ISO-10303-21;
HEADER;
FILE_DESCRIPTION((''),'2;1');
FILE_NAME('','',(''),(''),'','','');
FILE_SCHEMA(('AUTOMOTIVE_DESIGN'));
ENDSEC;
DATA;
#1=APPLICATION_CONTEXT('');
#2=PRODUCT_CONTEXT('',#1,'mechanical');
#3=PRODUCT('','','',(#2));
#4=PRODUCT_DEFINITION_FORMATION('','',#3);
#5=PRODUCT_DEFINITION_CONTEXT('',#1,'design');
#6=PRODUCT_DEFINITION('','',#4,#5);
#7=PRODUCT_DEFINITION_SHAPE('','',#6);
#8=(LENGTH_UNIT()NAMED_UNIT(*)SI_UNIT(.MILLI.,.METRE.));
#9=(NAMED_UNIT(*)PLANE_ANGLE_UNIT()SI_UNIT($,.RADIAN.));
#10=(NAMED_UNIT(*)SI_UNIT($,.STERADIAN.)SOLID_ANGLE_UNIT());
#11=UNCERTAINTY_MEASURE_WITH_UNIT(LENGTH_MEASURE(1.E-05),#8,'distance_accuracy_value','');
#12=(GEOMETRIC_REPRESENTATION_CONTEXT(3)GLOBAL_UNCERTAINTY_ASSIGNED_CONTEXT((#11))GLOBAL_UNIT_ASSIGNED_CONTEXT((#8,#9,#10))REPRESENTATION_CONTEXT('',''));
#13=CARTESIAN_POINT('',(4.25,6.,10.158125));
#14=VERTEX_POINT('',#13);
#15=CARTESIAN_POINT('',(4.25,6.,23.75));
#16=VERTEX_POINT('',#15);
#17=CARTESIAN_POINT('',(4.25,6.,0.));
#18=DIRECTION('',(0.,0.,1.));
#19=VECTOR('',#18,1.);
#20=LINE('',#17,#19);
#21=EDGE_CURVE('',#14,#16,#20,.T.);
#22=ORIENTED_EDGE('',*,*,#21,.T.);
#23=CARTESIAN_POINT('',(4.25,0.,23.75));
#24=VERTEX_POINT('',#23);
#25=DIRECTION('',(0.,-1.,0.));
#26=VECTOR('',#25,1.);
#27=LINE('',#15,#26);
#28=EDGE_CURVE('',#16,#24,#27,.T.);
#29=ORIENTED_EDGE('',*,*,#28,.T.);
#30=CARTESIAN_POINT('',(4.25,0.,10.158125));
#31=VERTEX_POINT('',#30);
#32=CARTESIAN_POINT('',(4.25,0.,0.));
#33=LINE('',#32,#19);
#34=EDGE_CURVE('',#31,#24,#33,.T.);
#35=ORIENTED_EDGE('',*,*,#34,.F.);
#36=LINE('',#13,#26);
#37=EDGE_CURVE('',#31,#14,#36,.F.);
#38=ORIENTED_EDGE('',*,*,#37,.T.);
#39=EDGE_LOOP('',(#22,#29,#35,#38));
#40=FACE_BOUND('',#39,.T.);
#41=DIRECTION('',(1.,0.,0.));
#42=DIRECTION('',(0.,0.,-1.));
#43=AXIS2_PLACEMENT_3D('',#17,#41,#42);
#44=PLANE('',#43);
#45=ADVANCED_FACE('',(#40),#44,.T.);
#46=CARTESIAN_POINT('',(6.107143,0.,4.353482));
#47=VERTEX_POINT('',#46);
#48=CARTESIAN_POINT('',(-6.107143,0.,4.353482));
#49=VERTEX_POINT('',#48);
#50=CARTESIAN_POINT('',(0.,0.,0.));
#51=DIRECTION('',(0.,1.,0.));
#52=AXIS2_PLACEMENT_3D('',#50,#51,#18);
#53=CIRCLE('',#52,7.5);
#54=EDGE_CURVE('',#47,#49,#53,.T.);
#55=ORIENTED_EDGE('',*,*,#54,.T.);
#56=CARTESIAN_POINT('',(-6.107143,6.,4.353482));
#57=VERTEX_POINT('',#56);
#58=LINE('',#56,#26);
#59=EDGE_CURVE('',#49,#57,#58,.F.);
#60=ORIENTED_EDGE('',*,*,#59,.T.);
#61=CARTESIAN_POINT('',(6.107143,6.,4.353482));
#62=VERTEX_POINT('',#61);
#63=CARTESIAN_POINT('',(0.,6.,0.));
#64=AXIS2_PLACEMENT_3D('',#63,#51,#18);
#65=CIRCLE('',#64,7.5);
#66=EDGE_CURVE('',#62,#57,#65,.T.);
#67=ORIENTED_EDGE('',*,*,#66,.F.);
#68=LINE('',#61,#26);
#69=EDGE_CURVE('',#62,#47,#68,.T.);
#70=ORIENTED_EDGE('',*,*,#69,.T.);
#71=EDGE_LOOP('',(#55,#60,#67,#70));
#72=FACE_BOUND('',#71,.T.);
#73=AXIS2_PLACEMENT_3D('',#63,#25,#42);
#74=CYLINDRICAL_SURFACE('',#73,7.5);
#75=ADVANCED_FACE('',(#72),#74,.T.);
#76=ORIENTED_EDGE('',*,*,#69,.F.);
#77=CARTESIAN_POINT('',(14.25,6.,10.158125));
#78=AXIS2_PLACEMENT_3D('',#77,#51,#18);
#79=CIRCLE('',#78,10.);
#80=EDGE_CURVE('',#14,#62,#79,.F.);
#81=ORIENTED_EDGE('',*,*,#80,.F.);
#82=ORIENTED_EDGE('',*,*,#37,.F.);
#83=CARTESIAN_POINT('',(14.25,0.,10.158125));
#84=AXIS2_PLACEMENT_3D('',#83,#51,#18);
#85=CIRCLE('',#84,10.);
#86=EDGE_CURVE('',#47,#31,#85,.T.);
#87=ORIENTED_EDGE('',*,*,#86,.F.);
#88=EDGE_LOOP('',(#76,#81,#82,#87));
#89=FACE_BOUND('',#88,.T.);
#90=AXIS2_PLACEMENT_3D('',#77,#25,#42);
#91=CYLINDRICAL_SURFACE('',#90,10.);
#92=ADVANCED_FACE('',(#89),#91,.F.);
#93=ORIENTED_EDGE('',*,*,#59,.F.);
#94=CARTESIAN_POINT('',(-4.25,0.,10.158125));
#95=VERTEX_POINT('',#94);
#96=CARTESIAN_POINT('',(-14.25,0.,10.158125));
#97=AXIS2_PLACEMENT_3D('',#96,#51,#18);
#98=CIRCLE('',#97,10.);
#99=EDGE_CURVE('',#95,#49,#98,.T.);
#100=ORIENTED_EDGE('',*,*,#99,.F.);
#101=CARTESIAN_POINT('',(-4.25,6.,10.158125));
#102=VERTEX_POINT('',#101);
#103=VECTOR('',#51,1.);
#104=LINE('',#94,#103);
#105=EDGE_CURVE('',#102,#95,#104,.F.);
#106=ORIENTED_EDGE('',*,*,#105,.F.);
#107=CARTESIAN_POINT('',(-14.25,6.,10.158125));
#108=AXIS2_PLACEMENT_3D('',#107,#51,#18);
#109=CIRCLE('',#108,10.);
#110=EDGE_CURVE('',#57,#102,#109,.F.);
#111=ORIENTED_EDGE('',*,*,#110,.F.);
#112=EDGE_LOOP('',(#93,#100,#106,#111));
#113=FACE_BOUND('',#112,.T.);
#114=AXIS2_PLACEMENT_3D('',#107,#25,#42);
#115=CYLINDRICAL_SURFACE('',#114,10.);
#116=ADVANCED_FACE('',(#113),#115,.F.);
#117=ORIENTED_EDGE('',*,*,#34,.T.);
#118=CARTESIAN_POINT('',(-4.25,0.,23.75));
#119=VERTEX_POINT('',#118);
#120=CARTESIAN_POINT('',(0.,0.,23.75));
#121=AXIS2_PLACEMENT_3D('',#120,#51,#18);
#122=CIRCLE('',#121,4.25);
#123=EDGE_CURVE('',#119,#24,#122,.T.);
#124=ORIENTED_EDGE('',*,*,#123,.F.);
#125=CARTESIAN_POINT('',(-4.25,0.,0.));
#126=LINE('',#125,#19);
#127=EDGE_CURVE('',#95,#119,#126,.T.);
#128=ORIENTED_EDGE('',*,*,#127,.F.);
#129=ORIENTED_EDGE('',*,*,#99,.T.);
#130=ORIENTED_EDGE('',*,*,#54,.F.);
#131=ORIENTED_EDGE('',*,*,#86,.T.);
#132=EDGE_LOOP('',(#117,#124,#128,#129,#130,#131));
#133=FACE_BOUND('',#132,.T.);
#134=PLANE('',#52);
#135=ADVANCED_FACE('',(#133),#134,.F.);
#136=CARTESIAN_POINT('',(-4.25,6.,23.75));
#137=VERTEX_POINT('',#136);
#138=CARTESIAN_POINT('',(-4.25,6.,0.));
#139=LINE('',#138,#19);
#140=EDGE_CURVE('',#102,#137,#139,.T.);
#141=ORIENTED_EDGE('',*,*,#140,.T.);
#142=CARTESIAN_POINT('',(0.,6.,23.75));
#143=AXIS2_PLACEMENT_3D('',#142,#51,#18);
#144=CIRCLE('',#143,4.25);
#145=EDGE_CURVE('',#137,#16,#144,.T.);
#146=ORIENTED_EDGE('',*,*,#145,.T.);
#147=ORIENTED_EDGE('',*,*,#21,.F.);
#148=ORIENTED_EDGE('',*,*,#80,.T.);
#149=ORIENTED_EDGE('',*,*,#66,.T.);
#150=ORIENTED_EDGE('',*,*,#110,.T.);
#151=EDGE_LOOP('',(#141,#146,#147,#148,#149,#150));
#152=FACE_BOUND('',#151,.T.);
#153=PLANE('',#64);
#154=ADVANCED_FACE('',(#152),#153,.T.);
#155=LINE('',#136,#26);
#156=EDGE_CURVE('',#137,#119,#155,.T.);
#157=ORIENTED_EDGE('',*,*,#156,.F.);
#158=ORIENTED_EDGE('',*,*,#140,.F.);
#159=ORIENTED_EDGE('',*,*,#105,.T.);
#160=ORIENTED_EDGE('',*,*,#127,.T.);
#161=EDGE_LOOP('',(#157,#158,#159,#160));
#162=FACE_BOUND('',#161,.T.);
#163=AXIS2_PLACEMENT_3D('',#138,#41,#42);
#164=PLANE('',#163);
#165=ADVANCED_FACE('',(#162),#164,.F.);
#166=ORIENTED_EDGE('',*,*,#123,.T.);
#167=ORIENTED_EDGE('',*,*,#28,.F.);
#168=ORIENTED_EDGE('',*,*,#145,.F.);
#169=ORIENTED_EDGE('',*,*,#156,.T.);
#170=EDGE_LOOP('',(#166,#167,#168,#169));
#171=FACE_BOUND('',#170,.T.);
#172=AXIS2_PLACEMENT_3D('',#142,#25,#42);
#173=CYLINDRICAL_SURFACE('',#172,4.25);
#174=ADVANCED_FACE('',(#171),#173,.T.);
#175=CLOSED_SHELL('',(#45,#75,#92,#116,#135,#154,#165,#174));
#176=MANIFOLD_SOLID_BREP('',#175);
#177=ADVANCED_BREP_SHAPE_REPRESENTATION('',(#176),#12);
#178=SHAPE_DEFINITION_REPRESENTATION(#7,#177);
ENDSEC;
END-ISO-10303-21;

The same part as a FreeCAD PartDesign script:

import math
import FreeCAD as App
import Part
import Sketcher
Q = App.Units.Quantity


def edges_at(feature, points):
    """Names of the edges that pass closest to the given points."""
    edges = feature.Shape.Edges
    near = lambda p: min(range(len(edges)), key=lambda i: edges[i].distToShape(Part.Vertex(*p))[0])
    return sorted({f"Edge{near(p) + 1}" for p in points})

doc = App.newDocument("Part")
body = doc.addObject("PartDesign::Body", "Body")

# Sketch on XZ plane
sketch1 = doc.addObject("Sketcher::SketchObject", "Sketch")
body.addObject(sketch1)
sketch1.AttachmentSupport = (doc.XZ_Plane, [""])
sketch1.MapMode = "FlatFace"
sketch1.addGeometry(Part.ArcOfCircle(Part.Circle(App.Vector(0, 0, 0), App.Vector(0, 0, 1), 7.5), math.radians(125), math.radians(415)), False)
sketch1.addGeometry(Part.LineSegment(App.Vector(-4.2, 6.2, 0), App.Vector(-4.2, 23.8, 0)), False)
sketch1.addGeometry(Part.ArcOfCircle(Part.Circle(App.Vector(0, 23.8, 0), App.Vector(0, 0, 1), 4.2), math.radians(0), math.radians(180)), False)
sketch1.addGeometry(Part.LineSegment(App.Vector(4.2, 23.8, 0), App.Vector(4.2, 6.2, 0)), False)
sketch1.addConstraint(Sketcher.Constraint("Coincident", 0, 1, 1, 1))
sketch1.addConstraint(Sketcher.Constraint("Tangent", 1, 2, 2, 2))
sketch1.addConstraint(Sketcher.Constraint("Tangent", 2, 1, 3, 1))
sketch1.addConstraint(Sketcher.Constraint("Coincident", 3, 2, 0, 2))
sketch1.addConstraint(Sketcher.Constraint("Vertical", 1))
sketch1.addConstraint(Sketcher.Constraint("Vertical", 3))
sketch1.addConstraint(Sketcher.Constraint("Coincident", 0, 3, -1, 1))
sketch1.addConstraint(Sketcher.Constraint("PointOnObject", 2, 3, -2))
sketch1.addConstraint(Sketcher.Constraint("Radius", 0, Q("7.5 mm")))
sketch1.addConstraint(Sketcher.Constraint("Radius", 2, Q("4.25 mm")))
sketch1.addConstraint(Sketcher.Constraint("DistanceY", -1, 1, 2, 3, Q("23.75 mm")))
pad1 = doc.addObject("PartDesign::Pad", "Pad")
body.addObject(pad1)
pad1.Profile = sketch1
pad1.Length = 6
pad1.Reversed = True
doc.recompute()

fillet = doc.addObject("PartDesign::Fillet", "Fillet")
body.addObject(fillet)
fillet.Base = (pad1, edges_at(pad1, [(4.25, 3, 6.18), (-4.25, 3, 6.18)]))
fillet.Radius = 10

doc.recompute()
